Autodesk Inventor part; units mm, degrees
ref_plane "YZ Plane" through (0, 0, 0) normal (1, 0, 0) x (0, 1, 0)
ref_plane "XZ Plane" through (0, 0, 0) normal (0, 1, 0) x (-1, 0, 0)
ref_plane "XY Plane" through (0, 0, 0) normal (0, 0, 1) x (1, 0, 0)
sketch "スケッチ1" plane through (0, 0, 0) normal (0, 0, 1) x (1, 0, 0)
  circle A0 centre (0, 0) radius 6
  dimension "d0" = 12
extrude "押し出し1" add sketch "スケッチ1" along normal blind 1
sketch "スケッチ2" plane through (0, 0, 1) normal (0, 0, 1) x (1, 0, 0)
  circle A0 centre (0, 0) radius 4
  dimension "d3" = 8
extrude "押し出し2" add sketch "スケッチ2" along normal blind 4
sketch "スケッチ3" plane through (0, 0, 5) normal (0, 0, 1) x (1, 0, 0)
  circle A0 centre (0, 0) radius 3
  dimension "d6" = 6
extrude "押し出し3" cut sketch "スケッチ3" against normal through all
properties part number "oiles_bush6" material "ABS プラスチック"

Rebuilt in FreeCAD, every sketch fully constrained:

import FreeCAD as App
import Part
import Sketcher
from FreeCAD import Vector

doc = App.newDocument("Part")
params = doc.addObject("Spreadsheet::Sheet", "Params")
for row, (alias, value) in enumerate([
    ("sketch1_diameter", "12 mm"),
    ("pad1_length", "1 mm"),
    ("sketch2_diameter", "8 mm"),
    ("pad2_length", "4 mm"),
    ("sketch3_diameter", "6 mm"),
], start=1):
    params.set(f"A{row}", alias)
    params.set(f"B{row}", "=" + value)
    params.setAlias(f"B{row}", alias)

body = doc.addObject("PartDesign::Body", "Body")

# Sketch on XY plane
sketch1 = doc.addObject("Sketcher::SketchObject", "Sketch")
body.addObject(sketch1)
sketch1.AttachmentSupport = (doc.XY_Plane, [""])
sketch1.MapMode = "FlatFace"
sketch1.addGeometry(Part.Circle(Vector(0, 0, 0), Vector(0, 0, 1), 6), False)
sketch1.addConstraint([
    Sketcher.Constraint("Coincident", 0, 3, -1, 1),
    Sketcher.Constraint("Diameter", 0, 12.0),
])
sketch1.setExpression("Constraints[1]", "Params.sketch1_diameter")
pad1 = doc.addObject("PartDesign::Pad", "Pad")
body.addObject(pad1)
pad1.Profile = sketch1
pad1.setExpression("Length", "Params.pad1_length")

# Sketch on XY plane
sketch2 = doc.addObject("Sketcher::SketchObject", "Sketch001")
body.addObject(sketch2)
sketch2.AttachmentSupport = (doc.XY_Plane, [""])
sketch2.MapMode = "FlatFace"
sketch2.AttachmentOffset = App.Placement(Vector(0, 0, 1), App.Rotation())
sketch2.addGeometry(Part.Circle(Vector(0, 0, 0), Vector(0, 0, 1), 4), False)
sketch2.addConstraint([
    Sketcher.Constraint("Coincident", 0, 3, -1, 1),
    Sketcher.Constraint("Diameter", 0, 8.0),
])
sketch2.setExpression("Constraints[1]", "Params.sketch2_diameter")
pad2 = doc.addObject("PartDesign::Pad", "Pad001")
body.addObject(pad2)
pad2.Profile = sketch2
pad2.setExpression("Length", "Params.pad2_length")

# Sketch on XY plane
sketch3 = doc.addObject("Sketcher::SketchObject", "Sketch002")
body.addObject(sketch3)
sketch3.AttachmentSupport = (doc.XY_Plane, [""])
sketch3.MapMode = "FlatFace"
sketch3.AttachmentOffset = App.Placement(Vector(0, 0, 5), App.Rotation())
sketch3.addGeometry(Part.Circle(Vector(0, 0, 0), Vector(0, 0, 1), 3), False)
sketch3.addConstraint([
    Sketcher.Constraint("Coincident", 0, 3, -1, 1),
    Sketcher.Constraint("Diameter", 0, 6.0),
])
sketch3.setExpression("Constraints[1]", "Params.sketch3_diameter")
pocket1 = doc.addObject("PartDesign::Pocket", "Pocket")
body.addObject(pocket1)
pocket1.Profile = sketch3
pocket1.Type = "ThroughAll"

doc.recompute()
